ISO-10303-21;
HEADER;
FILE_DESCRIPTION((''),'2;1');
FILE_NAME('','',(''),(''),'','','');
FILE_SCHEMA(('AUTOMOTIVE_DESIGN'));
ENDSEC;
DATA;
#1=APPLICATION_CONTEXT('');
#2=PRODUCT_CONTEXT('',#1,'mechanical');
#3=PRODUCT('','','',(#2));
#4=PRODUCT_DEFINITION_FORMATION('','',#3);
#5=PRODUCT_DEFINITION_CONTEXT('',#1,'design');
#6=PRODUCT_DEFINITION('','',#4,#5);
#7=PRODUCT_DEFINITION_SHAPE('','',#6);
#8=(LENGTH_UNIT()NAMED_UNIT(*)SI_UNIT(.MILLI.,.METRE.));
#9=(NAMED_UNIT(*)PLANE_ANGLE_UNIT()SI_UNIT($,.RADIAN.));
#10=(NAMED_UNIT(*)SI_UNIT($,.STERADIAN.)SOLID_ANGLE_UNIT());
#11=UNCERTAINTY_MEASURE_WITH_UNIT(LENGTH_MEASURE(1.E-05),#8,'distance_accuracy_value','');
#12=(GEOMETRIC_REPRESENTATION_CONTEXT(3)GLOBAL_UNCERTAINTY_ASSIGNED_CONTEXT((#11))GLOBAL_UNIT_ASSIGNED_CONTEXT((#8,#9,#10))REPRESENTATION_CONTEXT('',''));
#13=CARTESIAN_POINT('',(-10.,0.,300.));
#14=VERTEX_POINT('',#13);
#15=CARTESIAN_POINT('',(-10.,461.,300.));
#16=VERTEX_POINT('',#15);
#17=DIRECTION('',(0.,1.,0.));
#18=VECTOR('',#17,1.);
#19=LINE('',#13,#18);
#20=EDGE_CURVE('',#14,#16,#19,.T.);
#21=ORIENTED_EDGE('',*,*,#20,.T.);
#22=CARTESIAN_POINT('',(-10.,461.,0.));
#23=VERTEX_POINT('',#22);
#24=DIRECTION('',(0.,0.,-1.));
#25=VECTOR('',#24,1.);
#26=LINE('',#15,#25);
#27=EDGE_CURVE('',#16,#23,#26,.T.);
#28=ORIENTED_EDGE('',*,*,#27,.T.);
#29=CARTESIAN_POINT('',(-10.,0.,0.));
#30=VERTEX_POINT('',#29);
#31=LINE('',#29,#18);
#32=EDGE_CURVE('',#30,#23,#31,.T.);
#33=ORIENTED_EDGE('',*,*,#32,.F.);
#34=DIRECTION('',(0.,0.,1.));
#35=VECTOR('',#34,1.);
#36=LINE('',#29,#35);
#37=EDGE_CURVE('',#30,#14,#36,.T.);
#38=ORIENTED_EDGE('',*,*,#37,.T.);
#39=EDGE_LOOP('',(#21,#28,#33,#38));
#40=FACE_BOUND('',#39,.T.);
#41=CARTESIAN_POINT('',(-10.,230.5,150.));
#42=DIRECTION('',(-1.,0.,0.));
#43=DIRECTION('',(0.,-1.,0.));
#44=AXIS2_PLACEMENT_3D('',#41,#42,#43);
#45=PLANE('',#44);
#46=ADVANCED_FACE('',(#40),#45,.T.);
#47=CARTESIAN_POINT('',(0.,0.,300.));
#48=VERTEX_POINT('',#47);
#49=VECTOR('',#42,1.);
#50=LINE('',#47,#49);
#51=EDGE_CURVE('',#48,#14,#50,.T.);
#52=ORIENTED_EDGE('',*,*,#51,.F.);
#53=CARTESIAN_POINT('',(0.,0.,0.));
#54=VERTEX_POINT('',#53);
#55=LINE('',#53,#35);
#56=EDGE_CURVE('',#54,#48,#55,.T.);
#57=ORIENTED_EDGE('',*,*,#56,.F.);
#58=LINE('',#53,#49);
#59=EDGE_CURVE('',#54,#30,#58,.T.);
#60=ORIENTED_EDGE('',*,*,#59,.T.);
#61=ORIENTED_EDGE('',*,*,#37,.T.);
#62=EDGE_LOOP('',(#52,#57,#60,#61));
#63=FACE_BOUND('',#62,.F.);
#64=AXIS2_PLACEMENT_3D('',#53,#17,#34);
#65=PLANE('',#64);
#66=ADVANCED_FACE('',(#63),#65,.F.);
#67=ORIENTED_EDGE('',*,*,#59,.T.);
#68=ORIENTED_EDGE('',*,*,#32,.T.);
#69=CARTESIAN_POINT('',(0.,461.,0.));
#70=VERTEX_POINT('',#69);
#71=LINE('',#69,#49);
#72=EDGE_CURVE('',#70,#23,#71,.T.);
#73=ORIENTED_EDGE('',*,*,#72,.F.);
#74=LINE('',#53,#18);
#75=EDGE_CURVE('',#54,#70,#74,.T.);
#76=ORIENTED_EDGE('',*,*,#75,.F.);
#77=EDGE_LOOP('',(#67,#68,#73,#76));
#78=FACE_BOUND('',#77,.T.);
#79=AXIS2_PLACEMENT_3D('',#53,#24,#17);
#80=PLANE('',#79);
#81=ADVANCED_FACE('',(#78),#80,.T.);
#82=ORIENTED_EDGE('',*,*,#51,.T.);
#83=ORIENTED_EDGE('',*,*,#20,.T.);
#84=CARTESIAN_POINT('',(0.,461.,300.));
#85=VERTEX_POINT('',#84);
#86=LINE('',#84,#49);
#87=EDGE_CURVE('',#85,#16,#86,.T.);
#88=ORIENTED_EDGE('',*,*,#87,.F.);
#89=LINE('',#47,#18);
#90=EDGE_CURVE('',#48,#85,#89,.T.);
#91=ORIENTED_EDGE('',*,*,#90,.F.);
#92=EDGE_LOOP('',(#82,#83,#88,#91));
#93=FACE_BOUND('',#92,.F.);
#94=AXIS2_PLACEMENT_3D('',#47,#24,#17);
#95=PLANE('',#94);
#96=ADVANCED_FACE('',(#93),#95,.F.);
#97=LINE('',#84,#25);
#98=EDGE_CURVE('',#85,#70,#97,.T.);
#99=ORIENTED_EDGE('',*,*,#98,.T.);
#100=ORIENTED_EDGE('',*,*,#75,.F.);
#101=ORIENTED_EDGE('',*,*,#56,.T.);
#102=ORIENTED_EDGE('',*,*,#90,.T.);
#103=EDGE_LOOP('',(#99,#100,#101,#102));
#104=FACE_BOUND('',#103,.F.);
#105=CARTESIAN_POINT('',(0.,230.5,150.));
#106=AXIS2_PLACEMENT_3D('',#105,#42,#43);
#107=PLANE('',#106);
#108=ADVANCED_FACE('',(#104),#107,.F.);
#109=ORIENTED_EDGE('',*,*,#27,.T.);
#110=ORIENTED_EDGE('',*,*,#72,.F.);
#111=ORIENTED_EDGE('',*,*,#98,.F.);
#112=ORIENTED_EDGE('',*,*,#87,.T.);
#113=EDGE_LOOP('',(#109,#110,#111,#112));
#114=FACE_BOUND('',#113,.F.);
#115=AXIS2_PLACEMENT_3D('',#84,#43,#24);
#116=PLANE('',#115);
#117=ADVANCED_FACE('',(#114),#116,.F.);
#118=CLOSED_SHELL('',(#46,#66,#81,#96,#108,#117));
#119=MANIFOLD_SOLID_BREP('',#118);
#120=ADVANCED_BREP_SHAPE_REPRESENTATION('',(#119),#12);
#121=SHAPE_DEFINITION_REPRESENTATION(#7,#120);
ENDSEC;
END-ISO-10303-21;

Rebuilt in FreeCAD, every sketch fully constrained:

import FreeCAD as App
import Part
import Sketcher

V = App.Vector
Q = App.Units.Quantity

doc = App.newDocument("Part")
body = doc.addObject("PartDesign::Body", "Body")

sketch1 = body.newObject("Sketcher::SketchObject", "Sketch")
sketch1.AttachmentSupport = (doc.getObject("YZ_Plane"), [""])
sketch1.MapMode = "FlatFace"
sketch1.addGeometry([
    Part.LineSegment(V(0, 300, 0), V(0, 0, 0)),
    Part.LineSegment(V(0, 0, 0), V(461, 0, 0)),
    Part.LineSegment(V(461, 0, 0), V(461, 300, 0)),
    Part.LineSegment(V(461, 300, 0), V(0, 300, 0)),
], False)
sketch1.addConstraint([
    Sketcher.Constraint("Coincident", 0, 2, 1, 1),
    Sketcher.Constraint("Coincident", 1, 2, 2, 1),
    Sketcher.Constraint("Coincident", 2, 2, 3, 1),
    Sketcher.Constraint("Coincident", 3, 2, 0, 1),
    Sketcher.Constraint("Vertical", 0),
    Sketcher.Constraint("Horizontal", 1),
    Sketcher.Constraint("Vertical", 2),
    Sketcher.Constraint("Horizontal", 3),
    Sketcher.Constraint("Coincident", 0, 2, -1, 1),
    Sketcher.Constraint("DistanceX", 1, 1, 1, 2, Q("461 mm")),
    Sketcher.Constraint("DistanceY", 0, 2, 0, 1, Q("300 mm")),
])
pad1 = body.newObject("PartDesign::Pad", "Pad")
pad1.Profile = sketch1
pad1.Length = 10
pad1.Reversed = True

doc.recompute()
